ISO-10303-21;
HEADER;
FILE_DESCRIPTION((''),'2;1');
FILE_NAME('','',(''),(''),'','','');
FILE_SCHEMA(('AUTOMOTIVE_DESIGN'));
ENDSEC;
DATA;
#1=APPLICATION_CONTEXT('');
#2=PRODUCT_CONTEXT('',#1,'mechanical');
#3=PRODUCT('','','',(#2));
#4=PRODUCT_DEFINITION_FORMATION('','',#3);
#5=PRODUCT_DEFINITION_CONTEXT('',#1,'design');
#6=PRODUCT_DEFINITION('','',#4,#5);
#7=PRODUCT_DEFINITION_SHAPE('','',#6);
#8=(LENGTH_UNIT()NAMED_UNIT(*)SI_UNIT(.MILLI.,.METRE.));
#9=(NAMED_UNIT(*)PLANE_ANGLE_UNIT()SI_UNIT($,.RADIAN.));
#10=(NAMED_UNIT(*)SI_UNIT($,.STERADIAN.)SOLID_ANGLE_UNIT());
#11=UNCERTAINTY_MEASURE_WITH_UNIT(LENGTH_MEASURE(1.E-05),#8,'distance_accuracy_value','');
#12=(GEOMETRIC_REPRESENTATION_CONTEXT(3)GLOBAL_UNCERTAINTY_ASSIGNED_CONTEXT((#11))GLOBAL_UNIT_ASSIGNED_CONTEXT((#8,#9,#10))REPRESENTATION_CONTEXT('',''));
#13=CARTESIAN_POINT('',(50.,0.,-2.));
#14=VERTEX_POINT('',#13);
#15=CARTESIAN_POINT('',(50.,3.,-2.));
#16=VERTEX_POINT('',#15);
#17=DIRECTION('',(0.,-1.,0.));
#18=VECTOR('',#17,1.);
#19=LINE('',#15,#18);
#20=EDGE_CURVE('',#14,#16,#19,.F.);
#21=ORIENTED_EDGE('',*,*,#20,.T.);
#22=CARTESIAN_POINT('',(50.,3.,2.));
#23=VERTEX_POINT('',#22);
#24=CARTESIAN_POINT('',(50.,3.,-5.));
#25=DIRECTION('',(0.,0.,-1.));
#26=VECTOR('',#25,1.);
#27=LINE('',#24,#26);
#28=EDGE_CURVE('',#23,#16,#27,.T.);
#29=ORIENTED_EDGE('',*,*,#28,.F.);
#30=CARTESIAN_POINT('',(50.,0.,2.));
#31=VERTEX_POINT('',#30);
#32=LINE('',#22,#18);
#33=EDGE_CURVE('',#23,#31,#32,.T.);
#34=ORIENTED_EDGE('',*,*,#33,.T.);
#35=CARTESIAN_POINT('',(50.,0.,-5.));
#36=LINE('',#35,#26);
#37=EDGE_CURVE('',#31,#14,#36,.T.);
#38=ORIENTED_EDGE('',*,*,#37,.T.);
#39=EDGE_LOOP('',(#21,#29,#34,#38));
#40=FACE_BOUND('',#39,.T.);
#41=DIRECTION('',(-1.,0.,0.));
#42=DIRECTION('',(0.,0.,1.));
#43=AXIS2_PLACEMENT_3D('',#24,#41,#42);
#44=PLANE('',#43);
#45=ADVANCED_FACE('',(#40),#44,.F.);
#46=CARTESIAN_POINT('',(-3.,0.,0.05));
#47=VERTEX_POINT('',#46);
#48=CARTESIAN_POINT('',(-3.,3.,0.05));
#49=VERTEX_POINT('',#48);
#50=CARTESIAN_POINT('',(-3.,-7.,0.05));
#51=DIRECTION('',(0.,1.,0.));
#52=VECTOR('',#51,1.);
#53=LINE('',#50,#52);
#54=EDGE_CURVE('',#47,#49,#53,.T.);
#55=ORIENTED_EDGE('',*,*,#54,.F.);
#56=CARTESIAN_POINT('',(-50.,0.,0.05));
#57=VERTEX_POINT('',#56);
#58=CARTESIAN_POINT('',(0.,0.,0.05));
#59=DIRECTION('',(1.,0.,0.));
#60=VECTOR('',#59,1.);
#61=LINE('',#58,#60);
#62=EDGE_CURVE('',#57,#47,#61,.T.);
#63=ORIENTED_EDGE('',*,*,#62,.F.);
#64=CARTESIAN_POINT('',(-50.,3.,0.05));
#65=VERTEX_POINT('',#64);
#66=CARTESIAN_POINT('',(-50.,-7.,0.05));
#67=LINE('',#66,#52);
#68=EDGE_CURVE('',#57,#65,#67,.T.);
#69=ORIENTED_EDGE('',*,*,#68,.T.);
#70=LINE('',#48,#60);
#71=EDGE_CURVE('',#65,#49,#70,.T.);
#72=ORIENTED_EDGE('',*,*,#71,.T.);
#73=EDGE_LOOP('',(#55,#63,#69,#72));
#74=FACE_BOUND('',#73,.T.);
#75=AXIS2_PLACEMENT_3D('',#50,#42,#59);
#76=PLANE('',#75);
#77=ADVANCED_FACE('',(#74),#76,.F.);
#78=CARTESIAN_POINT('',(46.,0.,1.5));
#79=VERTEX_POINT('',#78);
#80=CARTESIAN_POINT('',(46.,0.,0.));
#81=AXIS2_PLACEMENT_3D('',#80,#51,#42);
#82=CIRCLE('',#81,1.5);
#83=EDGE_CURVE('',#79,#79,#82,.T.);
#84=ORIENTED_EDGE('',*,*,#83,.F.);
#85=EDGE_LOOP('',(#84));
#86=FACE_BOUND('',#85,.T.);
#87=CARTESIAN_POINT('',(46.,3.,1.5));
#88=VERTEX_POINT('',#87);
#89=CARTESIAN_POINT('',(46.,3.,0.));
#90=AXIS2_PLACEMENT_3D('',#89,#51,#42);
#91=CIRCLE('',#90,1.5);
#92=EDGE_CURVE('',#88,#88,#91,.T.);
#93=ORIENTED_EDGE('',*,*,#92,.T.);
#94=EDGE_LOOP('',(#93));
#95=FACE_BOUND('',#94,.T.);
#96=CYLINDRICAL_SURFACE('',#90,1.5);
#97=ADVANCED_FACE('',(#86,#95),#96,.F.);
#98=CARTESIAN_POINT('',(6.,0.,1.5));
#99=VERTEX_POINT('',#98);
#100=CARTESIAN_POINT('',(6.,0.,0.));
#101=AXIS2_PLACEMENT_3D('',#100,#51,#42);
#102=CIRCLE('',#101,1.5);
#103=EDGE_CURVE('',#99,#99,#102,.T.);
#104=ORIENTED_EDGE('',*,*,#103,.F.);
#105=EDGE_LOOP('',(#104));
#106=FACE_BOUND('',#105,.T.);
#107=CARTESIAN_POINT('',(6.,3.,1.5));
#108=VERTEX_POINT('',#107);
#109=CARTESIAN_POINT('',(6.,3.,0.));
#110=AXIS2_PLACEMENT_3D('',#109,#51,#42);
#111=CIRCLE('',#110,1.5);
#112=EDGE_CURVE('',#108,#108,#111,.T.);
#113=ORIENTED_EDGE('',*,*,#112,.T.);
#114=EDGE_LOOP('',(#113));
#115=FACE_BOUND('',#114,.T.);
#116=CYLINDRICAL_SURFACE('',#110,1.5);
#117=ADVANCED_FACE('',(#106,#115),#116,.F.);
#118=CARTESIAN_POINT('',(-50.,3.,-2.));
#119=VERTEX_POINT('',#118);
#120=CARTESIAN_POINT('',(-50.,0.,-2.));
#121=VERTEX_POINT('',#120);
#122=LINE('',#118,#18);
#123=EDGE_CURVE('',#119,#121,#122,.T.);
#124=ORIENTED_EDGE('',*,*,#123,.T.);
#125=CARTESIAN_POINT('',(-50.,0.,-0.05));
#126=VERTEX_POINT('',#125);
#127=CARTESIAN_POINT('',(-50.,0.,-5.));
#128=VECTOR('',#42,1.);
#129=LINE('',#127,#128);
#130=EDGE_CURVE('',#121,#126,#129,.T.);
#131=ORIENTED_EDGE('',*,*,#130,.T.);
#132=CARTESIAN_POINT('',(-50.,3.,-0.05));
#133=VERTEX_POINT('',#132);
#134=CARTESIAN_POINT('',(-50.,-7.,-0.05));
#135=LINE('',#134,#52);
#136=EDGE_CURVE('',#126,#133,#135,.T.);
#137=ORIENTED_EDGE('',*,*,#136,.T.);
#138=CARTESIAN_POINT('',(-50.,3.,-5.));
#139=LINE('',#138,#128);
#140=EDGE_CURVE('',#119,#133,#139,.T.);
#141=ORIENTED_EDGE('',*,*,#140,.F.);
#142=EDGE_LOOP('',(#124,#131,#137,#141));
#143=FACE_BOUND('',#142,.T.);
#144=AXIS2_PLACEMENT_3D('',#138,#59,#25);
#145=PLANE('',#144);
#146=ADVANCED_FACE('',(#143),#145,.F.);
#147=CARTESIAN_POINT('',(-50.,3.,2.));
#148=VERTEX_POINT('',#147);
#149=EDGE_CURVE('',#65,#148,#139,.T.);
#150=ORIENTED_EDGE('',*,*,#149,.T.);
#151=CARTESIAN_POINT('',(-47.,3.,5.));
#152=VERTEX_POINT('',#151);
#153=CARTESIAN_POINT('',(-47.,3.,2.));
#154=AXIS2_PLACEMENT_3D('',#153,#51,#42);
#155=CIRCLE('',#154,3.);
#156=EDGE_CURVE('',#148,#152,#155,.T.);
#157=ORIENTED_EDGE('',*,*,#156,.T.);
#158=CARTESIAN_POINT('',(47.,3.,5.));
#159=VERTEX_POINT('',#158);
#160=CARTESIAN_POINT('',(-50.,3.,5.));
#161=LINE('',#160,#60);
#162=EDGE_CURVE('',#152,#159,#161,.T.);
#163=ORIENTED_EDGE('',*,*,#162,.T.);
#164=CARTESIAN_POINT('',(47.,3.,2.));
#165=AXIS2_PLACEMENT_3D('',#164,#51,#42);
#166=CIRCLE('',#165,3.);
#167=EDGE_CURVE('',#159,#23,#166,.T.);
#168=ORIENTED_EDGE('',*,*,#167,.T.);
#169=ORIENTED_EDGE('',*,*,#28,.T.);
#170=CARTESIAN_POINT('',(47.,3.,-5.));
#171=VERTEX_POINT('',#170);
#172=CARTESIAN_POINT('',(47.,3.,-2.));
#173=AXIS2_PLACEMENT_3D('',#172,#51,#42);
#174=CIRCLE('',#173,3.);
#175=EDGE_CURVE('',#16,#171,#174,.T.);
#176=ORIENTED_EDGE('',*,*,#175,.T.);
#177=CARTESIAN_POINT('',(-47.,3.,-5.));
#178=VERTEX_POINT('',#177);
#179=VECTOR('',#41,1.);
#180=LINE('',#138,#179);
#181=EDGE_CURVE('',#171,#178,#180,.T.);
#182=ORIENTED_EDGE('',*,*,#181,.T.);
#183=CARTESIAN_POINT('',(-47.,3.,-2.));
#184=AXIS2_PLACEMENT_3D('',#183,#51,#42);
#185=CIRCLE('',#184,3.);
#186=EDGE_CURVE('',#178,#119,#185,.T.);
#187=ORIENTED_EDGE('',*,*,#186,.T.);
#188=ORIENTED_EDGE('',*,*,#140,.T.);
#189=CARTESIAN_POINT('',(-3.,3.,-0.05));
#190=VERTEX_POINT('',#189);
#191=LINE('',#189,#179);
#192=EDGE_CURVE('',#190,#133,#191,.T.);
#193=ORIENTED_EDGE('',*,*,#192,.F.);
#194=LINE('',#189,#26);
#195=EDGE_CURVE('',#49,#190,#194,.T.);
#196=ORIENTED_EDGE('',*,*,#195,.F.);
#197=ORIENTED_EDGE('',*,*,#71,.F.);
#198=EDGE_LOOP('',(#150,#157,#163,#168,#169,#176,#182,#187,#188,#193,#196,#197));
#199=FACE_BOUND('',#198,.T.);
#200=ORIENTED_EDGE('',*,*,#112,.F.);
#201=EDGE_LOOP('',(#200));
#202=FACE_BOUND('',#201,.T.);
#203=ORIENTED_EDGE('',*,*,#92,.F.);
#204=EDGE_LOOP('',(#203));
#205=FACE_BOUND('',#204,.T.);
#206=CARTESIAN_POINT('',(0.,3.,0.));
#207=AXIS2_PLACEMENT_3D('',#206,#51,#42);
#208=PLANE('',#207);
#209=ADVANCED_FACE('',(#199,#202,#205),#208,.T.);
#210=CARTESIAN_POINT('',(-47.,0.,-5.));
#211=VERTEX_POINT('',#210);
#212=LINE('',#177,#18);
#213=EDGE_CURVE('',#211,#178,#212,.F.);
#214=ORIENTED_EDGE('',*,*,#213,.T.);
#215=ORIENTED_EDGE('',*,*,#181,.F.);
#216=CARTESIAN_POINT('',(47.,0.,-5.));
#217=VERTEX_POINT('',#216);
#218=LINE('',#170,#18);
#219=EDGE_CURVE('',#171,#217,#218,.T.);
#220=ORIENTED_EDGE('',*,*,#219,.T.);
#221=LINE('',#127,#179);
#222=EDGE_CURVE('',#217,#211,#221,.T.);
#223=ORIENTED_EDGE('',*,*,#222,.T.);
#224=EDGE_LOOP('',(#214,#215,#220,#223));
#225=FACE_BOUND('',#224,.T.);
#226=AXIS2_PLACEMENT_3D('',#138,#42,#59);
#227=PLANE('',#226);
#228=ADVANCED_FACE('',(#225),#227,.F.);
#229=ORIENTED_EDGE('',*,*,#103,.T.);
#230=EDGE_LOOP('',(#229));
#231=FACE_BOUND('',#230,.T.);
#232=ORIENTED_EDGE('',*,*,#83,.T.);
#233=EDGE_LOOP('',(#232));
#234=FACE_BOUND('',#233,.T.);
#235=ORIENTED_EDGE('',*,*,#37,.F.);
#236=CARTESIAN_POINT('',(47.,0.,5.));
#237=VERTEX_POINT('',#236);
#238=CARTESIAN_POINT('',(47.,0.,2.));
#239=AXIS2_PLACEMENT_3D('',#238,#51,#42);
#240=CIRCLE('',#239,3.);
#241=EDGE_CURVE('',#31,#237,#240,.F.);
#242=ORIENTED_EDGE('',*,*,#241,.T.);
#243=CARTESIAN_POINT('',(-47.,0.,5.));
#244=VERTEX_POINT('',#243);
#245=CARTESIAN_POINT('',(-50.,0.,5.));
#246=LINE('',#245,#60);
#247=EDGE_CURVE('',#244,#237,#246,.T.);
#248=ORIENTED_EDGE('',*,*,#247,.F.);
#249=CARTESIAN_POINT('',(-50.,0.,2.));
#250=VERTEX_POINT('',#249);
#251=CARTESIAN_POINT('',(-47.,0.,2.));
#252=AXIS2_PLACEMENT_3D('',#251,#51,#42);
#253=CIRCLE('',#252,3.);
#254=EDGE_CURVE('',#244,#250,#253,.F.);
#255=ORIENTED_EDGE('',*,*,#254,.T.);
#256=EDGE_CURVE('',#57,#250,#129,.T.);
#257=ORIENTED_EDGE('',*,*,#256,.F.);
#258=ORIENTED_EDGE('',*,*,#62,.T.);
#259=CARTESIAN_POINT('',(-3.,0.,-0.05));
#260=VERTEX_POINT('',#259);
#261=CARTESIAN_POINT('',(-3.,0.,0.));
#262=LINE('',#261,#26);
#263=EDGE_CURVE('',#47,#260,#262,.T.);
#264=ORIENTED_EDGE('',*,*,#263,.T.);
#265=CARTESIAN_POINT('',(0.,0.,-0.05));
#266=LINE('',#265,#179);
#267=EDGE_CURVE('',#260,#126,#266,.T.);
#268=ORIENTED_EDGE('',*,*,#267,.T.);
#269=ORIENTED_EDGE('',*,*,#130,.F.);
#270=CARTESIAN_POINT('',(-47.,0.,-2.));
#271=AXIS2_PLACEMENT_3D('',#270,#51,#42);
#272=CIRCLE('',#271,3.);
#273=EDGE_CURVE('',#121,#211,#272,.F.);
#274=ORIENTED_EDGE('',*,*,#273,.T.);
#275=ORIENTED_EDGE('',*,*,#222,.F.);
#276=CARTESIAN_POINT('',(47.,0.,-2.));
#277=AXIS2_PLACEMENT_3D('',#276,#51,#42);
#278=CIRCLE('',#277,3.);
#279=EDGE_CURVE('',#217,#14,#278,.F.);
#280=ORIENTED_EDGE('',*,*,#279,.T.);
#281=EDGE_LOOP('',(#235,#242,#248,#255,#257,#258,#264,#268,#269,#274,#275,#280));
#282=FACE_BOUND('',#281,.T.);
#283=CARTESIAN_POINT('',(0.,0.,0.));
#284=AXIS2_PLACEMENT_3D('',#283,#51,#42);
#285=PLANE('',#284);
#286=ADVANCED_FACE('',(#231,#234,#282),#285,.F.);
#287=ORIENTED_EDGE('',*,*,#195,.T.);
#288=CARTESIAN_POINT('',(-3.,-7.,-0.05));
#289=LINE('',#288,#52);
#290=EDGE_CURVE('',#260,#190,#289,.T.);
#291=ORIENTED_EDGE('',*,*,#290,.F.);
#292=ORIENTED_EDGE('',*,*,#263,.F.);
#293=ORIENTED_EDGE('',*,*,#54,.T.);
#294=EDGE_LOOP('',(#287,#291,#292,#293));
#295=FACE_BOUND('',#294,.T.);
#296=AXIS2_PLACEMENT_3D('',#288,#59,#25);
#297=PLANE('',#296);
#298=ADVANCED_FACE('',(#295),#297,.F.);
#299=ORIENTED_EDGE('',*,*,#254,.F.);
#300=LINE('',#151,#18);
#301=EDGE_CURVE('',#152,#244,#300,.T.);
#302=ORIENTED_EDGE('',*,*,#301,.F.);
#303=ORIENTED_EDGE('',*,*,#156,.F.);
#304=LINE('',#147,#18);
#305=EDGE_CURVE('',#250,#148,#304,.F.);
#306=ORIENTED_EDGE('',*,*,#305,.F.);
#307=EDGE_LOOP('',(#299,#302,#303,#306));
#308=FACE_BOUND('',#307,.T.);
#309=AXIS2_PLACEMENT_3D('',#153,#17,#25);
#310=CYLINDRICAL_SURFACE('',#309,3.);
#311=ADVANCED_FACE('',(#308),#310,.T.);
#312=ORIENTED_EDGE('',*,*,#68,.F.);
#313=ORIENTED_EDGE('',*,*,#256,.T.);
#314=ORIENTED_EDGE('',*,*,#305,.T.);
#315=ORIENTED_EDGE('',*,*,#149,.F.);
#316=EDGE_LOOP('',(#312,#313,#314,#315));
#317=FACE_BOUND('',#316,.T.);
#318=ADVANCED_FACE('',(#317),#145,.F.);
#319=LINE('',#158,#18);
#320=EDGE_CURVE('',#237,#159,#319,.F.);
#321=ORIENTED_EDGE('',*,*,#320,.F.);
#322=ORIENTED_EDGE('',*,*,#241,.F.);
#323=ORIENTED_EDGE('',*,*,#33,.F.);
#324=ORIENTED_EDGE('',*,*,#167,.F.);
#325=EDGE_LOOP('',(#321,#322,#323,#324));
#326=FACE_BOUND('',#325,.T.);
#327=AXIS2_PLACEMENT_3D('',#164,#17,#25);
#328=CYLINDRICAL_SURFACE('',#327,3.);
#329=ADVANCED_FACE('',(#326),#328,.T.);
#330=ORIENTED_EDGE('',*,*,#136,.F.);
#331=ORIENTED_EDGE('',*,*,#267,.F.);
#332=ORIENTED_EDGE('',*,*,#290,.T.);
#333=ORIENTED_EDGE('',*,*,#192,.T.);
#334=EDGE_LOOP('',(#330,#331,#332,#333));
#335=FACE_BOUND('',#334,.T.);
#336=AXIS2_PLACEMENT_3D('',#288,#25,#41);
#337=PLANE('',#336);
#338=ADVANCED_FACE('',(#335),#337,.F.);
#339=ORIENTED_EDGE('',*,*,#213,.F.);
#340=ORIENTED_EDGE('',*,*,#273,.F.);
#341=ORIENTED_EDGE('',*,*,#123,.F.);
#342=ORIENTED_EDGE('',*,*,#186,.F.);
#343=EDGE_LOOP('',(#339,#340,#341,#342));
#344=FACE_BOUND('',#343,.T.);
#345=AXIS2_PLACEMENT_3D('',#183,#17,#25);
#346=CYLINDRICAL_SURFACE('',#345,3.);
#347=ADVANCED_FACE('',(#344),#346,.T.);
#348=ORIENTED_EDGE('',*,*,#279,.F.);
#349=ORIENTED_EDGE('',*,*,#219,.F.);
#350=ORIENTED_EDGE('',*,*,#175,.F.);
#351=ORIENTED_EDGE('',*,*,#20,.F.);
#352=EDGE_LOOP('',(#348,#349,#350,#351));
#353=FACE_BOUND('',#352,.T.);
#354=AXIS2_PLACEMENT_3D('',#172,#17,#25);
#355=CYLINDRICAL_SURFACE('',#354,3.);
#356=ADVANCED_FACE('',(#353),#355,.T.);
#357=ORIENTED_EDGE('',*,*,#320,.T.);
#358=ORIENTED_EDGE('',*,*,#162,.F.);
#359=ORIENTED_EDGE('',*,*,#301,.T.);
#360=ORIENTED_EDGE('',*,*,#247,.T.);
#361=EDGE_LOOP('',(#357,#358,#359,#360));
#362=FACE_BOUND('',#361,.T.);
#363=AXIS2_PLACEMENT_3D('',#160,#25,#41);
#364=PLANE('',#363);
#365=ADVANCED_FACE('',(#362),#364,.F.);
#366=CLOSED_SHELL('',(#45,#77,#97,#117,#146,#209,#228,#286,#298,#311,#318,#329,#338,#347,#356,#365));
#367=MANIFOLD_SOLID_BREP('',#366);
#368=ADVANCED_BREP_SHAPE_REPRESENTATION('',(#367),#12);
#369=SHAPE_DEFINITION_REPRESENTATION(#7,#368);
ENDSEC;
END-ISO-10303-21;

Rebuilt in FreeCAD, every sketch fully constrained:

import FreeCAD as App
import Part
import Sketcher

V = App.Vector


def edges_at(feature, points):
    """Names of the edges that pass closest to the given points."""
    edges = feature.Shape.Edges
    near = lambda p: min(range(len(edges)), key=lambda i: edges[i].distToShape(Part.Vertex(*p))[0])
    return sorted({f"Edge{near(p) + 1}" for p in points})


def add_polygon(sketch, points):
    """Adds a closed chain of lines whose ends are joined by coincident constraints."""
    first, n = sketch.GeometryCount, len(points)
    for a, b in zip(points, points[1:] + points[:1]):
        sketch.addGeometry(Part.LineSegment(App.Vector(*a, 0), App.Vector(*b, 0)), False)
    for i in range(n):
        sketch.addConstraint(Sketcher.Constraint("Coincident", first + i, 2, first + (i + 1) % n, 1))

doc = App.newDocument("Part")
body = doc.addObject("PartDesign::Body", "Body")

# Sketch on XZ plane
sketch1 = body.newObject("Sketcher::SketchObject", "Sketch")
sketch1.AttachmentSupport = (doc.getObject("XZ_Plane"), [""])
sketch1.MapMode = "FlatFace"
add_polygon(sketch1, [(-50, -5), (-50, 5), (50, 5), (50, -5)])  # lines 0-3
sketch1.addConstraint(Sketcher.Constraint("Vertical", 0))
sketch1.addConstraint(Sketcher.Constraint("Horizontal", 1))
sketch1.addConstraint(Sketcher.Constraint("Vertical", 2))
sketch1.addConstraint(Sketcher.Constraint("Horizontal", 3))
sketch1.addConstraint(Sketcher.Constraint("Symmetric", 0, 2, 2, 2, -1, 1))
sketch1.addConstraint(Sketcher.Constraint("DistanceX", 1, 1, 1, 2, 100.0))
sketch1.addConstraint(Sketcher.Constraint("DistanceY", 0, 1, 0, 2, 10.0))
pad1 = body.newObject("PartDesign::Pad", "Pad")
pad1.Profile = sketch1
pad1.Length = 3
pad1.Reversed = True
doc.recompute()

fillet = body.newObject("PartDesign::Fillet", "Fillet")
fillet.Base = (pad1, edges_at(pad1, [
    (50, 1.5, 5),
    (-50, 1.5, 5),
    (-50, 1.5, -5),
    (50, 1.5, -5),
]))
fillet.Radius = 3

# Sketch on XZ plane
sketch2 = body.newObject("Sketcher::SketchObject", "Sketch001")
sketch2.AttachmentSupport = (doc.getObject("XZ_Plane"), [""])
sketch2.MapMode = "FlatFace"
sketch2.AttachmentOffset = App.Placement(V(0, 0, -3), App.Rotation())
sketch2.addGeometry(Part.Circle(V(46, 0, 0), V(0, 0, 1), 1.5), False)
sketch2.addGeometry(Part.Circle(V(6, 0, 0), V(0, 0, 1), 1.5), False)
sketch2.addConstraint(Sketcher.Constraint("Equal", 0, 1))
sketch2.addConstraint(Sketcher.Constraint("PointOnObject", 0, 3, -1))
sketch2.addConstraint(Sketcher.Constraint("PointOnObject", 1, 3, -1))
sketch2.addConstraint(Sketcher.Constraint("Diameter", 0, 3.0))
sketch2.addConstraint(Sketcher.Constraint("DistanceX", -1, 1, 0, 3, 46.0))
sketch2.addConstraint(Sketcher.Constraint("DistanceX", -1, 1, 1, 3, 6.0))
doc.recompute()
hole = body.newObject("PartDesign::Hole", "Hole")
hole.Profile = sketch2
hole.ThreadType = "None"
hole.Diameter = 3
hole.DepthType = "ThroughAll"
hole.Reversed = True

# Sketch on XZ plane
sketch3 = body.newObject("Sketcher::SketchObject", "Sketch002")
sketch3.AttachmentSupport = (doc.getObject("XZ_Plane"), [""])
sketch3.MapMode = "FlatFace"
sketch3.AttachmentOffset = App.Placement(V(0, 0, -3), App.Rotation())
add_polygon(sketch3, [(-50, -0.05), (-50, 0.05), (-3, 0.05), (-3, -0.05)])  # lines 0-3
sketch3.addConstraint(Sketcher.Constraint("Vertical", 0))
sketch3.addConstraint(Sketcher.Constraint("Horizontal", 1))
sketch3.addConstraint(Sketcher.Constraint("Vertical", 2))
sketch3.addConstraint(Sketcher.Constraint("Horizontal", 3))
sketch3.addConstraint(Sketcher.Constraint("DistanceX", 1, 1, 1, 2, 47.0))
sketch3.addConstraint(Sketcher.Constraint("DistanceY", 0, 1, 0, 2, 0.1))
sketch3.addConstraint(Sketcher.Constraint("DistanceX", 0, 2, -1, 1, 50.0))
sketch3.addConstraint(Sketcher.Constraint("DistanceY", -1, 1, 0, 2, 0.05))
pocket1 = body.newObject("PartDesign::Pocket", "Pocket")
pocket1.Profile = sketch3
pocket1.Length = 10
pocket1.Reversed = True

doc.recompute()
